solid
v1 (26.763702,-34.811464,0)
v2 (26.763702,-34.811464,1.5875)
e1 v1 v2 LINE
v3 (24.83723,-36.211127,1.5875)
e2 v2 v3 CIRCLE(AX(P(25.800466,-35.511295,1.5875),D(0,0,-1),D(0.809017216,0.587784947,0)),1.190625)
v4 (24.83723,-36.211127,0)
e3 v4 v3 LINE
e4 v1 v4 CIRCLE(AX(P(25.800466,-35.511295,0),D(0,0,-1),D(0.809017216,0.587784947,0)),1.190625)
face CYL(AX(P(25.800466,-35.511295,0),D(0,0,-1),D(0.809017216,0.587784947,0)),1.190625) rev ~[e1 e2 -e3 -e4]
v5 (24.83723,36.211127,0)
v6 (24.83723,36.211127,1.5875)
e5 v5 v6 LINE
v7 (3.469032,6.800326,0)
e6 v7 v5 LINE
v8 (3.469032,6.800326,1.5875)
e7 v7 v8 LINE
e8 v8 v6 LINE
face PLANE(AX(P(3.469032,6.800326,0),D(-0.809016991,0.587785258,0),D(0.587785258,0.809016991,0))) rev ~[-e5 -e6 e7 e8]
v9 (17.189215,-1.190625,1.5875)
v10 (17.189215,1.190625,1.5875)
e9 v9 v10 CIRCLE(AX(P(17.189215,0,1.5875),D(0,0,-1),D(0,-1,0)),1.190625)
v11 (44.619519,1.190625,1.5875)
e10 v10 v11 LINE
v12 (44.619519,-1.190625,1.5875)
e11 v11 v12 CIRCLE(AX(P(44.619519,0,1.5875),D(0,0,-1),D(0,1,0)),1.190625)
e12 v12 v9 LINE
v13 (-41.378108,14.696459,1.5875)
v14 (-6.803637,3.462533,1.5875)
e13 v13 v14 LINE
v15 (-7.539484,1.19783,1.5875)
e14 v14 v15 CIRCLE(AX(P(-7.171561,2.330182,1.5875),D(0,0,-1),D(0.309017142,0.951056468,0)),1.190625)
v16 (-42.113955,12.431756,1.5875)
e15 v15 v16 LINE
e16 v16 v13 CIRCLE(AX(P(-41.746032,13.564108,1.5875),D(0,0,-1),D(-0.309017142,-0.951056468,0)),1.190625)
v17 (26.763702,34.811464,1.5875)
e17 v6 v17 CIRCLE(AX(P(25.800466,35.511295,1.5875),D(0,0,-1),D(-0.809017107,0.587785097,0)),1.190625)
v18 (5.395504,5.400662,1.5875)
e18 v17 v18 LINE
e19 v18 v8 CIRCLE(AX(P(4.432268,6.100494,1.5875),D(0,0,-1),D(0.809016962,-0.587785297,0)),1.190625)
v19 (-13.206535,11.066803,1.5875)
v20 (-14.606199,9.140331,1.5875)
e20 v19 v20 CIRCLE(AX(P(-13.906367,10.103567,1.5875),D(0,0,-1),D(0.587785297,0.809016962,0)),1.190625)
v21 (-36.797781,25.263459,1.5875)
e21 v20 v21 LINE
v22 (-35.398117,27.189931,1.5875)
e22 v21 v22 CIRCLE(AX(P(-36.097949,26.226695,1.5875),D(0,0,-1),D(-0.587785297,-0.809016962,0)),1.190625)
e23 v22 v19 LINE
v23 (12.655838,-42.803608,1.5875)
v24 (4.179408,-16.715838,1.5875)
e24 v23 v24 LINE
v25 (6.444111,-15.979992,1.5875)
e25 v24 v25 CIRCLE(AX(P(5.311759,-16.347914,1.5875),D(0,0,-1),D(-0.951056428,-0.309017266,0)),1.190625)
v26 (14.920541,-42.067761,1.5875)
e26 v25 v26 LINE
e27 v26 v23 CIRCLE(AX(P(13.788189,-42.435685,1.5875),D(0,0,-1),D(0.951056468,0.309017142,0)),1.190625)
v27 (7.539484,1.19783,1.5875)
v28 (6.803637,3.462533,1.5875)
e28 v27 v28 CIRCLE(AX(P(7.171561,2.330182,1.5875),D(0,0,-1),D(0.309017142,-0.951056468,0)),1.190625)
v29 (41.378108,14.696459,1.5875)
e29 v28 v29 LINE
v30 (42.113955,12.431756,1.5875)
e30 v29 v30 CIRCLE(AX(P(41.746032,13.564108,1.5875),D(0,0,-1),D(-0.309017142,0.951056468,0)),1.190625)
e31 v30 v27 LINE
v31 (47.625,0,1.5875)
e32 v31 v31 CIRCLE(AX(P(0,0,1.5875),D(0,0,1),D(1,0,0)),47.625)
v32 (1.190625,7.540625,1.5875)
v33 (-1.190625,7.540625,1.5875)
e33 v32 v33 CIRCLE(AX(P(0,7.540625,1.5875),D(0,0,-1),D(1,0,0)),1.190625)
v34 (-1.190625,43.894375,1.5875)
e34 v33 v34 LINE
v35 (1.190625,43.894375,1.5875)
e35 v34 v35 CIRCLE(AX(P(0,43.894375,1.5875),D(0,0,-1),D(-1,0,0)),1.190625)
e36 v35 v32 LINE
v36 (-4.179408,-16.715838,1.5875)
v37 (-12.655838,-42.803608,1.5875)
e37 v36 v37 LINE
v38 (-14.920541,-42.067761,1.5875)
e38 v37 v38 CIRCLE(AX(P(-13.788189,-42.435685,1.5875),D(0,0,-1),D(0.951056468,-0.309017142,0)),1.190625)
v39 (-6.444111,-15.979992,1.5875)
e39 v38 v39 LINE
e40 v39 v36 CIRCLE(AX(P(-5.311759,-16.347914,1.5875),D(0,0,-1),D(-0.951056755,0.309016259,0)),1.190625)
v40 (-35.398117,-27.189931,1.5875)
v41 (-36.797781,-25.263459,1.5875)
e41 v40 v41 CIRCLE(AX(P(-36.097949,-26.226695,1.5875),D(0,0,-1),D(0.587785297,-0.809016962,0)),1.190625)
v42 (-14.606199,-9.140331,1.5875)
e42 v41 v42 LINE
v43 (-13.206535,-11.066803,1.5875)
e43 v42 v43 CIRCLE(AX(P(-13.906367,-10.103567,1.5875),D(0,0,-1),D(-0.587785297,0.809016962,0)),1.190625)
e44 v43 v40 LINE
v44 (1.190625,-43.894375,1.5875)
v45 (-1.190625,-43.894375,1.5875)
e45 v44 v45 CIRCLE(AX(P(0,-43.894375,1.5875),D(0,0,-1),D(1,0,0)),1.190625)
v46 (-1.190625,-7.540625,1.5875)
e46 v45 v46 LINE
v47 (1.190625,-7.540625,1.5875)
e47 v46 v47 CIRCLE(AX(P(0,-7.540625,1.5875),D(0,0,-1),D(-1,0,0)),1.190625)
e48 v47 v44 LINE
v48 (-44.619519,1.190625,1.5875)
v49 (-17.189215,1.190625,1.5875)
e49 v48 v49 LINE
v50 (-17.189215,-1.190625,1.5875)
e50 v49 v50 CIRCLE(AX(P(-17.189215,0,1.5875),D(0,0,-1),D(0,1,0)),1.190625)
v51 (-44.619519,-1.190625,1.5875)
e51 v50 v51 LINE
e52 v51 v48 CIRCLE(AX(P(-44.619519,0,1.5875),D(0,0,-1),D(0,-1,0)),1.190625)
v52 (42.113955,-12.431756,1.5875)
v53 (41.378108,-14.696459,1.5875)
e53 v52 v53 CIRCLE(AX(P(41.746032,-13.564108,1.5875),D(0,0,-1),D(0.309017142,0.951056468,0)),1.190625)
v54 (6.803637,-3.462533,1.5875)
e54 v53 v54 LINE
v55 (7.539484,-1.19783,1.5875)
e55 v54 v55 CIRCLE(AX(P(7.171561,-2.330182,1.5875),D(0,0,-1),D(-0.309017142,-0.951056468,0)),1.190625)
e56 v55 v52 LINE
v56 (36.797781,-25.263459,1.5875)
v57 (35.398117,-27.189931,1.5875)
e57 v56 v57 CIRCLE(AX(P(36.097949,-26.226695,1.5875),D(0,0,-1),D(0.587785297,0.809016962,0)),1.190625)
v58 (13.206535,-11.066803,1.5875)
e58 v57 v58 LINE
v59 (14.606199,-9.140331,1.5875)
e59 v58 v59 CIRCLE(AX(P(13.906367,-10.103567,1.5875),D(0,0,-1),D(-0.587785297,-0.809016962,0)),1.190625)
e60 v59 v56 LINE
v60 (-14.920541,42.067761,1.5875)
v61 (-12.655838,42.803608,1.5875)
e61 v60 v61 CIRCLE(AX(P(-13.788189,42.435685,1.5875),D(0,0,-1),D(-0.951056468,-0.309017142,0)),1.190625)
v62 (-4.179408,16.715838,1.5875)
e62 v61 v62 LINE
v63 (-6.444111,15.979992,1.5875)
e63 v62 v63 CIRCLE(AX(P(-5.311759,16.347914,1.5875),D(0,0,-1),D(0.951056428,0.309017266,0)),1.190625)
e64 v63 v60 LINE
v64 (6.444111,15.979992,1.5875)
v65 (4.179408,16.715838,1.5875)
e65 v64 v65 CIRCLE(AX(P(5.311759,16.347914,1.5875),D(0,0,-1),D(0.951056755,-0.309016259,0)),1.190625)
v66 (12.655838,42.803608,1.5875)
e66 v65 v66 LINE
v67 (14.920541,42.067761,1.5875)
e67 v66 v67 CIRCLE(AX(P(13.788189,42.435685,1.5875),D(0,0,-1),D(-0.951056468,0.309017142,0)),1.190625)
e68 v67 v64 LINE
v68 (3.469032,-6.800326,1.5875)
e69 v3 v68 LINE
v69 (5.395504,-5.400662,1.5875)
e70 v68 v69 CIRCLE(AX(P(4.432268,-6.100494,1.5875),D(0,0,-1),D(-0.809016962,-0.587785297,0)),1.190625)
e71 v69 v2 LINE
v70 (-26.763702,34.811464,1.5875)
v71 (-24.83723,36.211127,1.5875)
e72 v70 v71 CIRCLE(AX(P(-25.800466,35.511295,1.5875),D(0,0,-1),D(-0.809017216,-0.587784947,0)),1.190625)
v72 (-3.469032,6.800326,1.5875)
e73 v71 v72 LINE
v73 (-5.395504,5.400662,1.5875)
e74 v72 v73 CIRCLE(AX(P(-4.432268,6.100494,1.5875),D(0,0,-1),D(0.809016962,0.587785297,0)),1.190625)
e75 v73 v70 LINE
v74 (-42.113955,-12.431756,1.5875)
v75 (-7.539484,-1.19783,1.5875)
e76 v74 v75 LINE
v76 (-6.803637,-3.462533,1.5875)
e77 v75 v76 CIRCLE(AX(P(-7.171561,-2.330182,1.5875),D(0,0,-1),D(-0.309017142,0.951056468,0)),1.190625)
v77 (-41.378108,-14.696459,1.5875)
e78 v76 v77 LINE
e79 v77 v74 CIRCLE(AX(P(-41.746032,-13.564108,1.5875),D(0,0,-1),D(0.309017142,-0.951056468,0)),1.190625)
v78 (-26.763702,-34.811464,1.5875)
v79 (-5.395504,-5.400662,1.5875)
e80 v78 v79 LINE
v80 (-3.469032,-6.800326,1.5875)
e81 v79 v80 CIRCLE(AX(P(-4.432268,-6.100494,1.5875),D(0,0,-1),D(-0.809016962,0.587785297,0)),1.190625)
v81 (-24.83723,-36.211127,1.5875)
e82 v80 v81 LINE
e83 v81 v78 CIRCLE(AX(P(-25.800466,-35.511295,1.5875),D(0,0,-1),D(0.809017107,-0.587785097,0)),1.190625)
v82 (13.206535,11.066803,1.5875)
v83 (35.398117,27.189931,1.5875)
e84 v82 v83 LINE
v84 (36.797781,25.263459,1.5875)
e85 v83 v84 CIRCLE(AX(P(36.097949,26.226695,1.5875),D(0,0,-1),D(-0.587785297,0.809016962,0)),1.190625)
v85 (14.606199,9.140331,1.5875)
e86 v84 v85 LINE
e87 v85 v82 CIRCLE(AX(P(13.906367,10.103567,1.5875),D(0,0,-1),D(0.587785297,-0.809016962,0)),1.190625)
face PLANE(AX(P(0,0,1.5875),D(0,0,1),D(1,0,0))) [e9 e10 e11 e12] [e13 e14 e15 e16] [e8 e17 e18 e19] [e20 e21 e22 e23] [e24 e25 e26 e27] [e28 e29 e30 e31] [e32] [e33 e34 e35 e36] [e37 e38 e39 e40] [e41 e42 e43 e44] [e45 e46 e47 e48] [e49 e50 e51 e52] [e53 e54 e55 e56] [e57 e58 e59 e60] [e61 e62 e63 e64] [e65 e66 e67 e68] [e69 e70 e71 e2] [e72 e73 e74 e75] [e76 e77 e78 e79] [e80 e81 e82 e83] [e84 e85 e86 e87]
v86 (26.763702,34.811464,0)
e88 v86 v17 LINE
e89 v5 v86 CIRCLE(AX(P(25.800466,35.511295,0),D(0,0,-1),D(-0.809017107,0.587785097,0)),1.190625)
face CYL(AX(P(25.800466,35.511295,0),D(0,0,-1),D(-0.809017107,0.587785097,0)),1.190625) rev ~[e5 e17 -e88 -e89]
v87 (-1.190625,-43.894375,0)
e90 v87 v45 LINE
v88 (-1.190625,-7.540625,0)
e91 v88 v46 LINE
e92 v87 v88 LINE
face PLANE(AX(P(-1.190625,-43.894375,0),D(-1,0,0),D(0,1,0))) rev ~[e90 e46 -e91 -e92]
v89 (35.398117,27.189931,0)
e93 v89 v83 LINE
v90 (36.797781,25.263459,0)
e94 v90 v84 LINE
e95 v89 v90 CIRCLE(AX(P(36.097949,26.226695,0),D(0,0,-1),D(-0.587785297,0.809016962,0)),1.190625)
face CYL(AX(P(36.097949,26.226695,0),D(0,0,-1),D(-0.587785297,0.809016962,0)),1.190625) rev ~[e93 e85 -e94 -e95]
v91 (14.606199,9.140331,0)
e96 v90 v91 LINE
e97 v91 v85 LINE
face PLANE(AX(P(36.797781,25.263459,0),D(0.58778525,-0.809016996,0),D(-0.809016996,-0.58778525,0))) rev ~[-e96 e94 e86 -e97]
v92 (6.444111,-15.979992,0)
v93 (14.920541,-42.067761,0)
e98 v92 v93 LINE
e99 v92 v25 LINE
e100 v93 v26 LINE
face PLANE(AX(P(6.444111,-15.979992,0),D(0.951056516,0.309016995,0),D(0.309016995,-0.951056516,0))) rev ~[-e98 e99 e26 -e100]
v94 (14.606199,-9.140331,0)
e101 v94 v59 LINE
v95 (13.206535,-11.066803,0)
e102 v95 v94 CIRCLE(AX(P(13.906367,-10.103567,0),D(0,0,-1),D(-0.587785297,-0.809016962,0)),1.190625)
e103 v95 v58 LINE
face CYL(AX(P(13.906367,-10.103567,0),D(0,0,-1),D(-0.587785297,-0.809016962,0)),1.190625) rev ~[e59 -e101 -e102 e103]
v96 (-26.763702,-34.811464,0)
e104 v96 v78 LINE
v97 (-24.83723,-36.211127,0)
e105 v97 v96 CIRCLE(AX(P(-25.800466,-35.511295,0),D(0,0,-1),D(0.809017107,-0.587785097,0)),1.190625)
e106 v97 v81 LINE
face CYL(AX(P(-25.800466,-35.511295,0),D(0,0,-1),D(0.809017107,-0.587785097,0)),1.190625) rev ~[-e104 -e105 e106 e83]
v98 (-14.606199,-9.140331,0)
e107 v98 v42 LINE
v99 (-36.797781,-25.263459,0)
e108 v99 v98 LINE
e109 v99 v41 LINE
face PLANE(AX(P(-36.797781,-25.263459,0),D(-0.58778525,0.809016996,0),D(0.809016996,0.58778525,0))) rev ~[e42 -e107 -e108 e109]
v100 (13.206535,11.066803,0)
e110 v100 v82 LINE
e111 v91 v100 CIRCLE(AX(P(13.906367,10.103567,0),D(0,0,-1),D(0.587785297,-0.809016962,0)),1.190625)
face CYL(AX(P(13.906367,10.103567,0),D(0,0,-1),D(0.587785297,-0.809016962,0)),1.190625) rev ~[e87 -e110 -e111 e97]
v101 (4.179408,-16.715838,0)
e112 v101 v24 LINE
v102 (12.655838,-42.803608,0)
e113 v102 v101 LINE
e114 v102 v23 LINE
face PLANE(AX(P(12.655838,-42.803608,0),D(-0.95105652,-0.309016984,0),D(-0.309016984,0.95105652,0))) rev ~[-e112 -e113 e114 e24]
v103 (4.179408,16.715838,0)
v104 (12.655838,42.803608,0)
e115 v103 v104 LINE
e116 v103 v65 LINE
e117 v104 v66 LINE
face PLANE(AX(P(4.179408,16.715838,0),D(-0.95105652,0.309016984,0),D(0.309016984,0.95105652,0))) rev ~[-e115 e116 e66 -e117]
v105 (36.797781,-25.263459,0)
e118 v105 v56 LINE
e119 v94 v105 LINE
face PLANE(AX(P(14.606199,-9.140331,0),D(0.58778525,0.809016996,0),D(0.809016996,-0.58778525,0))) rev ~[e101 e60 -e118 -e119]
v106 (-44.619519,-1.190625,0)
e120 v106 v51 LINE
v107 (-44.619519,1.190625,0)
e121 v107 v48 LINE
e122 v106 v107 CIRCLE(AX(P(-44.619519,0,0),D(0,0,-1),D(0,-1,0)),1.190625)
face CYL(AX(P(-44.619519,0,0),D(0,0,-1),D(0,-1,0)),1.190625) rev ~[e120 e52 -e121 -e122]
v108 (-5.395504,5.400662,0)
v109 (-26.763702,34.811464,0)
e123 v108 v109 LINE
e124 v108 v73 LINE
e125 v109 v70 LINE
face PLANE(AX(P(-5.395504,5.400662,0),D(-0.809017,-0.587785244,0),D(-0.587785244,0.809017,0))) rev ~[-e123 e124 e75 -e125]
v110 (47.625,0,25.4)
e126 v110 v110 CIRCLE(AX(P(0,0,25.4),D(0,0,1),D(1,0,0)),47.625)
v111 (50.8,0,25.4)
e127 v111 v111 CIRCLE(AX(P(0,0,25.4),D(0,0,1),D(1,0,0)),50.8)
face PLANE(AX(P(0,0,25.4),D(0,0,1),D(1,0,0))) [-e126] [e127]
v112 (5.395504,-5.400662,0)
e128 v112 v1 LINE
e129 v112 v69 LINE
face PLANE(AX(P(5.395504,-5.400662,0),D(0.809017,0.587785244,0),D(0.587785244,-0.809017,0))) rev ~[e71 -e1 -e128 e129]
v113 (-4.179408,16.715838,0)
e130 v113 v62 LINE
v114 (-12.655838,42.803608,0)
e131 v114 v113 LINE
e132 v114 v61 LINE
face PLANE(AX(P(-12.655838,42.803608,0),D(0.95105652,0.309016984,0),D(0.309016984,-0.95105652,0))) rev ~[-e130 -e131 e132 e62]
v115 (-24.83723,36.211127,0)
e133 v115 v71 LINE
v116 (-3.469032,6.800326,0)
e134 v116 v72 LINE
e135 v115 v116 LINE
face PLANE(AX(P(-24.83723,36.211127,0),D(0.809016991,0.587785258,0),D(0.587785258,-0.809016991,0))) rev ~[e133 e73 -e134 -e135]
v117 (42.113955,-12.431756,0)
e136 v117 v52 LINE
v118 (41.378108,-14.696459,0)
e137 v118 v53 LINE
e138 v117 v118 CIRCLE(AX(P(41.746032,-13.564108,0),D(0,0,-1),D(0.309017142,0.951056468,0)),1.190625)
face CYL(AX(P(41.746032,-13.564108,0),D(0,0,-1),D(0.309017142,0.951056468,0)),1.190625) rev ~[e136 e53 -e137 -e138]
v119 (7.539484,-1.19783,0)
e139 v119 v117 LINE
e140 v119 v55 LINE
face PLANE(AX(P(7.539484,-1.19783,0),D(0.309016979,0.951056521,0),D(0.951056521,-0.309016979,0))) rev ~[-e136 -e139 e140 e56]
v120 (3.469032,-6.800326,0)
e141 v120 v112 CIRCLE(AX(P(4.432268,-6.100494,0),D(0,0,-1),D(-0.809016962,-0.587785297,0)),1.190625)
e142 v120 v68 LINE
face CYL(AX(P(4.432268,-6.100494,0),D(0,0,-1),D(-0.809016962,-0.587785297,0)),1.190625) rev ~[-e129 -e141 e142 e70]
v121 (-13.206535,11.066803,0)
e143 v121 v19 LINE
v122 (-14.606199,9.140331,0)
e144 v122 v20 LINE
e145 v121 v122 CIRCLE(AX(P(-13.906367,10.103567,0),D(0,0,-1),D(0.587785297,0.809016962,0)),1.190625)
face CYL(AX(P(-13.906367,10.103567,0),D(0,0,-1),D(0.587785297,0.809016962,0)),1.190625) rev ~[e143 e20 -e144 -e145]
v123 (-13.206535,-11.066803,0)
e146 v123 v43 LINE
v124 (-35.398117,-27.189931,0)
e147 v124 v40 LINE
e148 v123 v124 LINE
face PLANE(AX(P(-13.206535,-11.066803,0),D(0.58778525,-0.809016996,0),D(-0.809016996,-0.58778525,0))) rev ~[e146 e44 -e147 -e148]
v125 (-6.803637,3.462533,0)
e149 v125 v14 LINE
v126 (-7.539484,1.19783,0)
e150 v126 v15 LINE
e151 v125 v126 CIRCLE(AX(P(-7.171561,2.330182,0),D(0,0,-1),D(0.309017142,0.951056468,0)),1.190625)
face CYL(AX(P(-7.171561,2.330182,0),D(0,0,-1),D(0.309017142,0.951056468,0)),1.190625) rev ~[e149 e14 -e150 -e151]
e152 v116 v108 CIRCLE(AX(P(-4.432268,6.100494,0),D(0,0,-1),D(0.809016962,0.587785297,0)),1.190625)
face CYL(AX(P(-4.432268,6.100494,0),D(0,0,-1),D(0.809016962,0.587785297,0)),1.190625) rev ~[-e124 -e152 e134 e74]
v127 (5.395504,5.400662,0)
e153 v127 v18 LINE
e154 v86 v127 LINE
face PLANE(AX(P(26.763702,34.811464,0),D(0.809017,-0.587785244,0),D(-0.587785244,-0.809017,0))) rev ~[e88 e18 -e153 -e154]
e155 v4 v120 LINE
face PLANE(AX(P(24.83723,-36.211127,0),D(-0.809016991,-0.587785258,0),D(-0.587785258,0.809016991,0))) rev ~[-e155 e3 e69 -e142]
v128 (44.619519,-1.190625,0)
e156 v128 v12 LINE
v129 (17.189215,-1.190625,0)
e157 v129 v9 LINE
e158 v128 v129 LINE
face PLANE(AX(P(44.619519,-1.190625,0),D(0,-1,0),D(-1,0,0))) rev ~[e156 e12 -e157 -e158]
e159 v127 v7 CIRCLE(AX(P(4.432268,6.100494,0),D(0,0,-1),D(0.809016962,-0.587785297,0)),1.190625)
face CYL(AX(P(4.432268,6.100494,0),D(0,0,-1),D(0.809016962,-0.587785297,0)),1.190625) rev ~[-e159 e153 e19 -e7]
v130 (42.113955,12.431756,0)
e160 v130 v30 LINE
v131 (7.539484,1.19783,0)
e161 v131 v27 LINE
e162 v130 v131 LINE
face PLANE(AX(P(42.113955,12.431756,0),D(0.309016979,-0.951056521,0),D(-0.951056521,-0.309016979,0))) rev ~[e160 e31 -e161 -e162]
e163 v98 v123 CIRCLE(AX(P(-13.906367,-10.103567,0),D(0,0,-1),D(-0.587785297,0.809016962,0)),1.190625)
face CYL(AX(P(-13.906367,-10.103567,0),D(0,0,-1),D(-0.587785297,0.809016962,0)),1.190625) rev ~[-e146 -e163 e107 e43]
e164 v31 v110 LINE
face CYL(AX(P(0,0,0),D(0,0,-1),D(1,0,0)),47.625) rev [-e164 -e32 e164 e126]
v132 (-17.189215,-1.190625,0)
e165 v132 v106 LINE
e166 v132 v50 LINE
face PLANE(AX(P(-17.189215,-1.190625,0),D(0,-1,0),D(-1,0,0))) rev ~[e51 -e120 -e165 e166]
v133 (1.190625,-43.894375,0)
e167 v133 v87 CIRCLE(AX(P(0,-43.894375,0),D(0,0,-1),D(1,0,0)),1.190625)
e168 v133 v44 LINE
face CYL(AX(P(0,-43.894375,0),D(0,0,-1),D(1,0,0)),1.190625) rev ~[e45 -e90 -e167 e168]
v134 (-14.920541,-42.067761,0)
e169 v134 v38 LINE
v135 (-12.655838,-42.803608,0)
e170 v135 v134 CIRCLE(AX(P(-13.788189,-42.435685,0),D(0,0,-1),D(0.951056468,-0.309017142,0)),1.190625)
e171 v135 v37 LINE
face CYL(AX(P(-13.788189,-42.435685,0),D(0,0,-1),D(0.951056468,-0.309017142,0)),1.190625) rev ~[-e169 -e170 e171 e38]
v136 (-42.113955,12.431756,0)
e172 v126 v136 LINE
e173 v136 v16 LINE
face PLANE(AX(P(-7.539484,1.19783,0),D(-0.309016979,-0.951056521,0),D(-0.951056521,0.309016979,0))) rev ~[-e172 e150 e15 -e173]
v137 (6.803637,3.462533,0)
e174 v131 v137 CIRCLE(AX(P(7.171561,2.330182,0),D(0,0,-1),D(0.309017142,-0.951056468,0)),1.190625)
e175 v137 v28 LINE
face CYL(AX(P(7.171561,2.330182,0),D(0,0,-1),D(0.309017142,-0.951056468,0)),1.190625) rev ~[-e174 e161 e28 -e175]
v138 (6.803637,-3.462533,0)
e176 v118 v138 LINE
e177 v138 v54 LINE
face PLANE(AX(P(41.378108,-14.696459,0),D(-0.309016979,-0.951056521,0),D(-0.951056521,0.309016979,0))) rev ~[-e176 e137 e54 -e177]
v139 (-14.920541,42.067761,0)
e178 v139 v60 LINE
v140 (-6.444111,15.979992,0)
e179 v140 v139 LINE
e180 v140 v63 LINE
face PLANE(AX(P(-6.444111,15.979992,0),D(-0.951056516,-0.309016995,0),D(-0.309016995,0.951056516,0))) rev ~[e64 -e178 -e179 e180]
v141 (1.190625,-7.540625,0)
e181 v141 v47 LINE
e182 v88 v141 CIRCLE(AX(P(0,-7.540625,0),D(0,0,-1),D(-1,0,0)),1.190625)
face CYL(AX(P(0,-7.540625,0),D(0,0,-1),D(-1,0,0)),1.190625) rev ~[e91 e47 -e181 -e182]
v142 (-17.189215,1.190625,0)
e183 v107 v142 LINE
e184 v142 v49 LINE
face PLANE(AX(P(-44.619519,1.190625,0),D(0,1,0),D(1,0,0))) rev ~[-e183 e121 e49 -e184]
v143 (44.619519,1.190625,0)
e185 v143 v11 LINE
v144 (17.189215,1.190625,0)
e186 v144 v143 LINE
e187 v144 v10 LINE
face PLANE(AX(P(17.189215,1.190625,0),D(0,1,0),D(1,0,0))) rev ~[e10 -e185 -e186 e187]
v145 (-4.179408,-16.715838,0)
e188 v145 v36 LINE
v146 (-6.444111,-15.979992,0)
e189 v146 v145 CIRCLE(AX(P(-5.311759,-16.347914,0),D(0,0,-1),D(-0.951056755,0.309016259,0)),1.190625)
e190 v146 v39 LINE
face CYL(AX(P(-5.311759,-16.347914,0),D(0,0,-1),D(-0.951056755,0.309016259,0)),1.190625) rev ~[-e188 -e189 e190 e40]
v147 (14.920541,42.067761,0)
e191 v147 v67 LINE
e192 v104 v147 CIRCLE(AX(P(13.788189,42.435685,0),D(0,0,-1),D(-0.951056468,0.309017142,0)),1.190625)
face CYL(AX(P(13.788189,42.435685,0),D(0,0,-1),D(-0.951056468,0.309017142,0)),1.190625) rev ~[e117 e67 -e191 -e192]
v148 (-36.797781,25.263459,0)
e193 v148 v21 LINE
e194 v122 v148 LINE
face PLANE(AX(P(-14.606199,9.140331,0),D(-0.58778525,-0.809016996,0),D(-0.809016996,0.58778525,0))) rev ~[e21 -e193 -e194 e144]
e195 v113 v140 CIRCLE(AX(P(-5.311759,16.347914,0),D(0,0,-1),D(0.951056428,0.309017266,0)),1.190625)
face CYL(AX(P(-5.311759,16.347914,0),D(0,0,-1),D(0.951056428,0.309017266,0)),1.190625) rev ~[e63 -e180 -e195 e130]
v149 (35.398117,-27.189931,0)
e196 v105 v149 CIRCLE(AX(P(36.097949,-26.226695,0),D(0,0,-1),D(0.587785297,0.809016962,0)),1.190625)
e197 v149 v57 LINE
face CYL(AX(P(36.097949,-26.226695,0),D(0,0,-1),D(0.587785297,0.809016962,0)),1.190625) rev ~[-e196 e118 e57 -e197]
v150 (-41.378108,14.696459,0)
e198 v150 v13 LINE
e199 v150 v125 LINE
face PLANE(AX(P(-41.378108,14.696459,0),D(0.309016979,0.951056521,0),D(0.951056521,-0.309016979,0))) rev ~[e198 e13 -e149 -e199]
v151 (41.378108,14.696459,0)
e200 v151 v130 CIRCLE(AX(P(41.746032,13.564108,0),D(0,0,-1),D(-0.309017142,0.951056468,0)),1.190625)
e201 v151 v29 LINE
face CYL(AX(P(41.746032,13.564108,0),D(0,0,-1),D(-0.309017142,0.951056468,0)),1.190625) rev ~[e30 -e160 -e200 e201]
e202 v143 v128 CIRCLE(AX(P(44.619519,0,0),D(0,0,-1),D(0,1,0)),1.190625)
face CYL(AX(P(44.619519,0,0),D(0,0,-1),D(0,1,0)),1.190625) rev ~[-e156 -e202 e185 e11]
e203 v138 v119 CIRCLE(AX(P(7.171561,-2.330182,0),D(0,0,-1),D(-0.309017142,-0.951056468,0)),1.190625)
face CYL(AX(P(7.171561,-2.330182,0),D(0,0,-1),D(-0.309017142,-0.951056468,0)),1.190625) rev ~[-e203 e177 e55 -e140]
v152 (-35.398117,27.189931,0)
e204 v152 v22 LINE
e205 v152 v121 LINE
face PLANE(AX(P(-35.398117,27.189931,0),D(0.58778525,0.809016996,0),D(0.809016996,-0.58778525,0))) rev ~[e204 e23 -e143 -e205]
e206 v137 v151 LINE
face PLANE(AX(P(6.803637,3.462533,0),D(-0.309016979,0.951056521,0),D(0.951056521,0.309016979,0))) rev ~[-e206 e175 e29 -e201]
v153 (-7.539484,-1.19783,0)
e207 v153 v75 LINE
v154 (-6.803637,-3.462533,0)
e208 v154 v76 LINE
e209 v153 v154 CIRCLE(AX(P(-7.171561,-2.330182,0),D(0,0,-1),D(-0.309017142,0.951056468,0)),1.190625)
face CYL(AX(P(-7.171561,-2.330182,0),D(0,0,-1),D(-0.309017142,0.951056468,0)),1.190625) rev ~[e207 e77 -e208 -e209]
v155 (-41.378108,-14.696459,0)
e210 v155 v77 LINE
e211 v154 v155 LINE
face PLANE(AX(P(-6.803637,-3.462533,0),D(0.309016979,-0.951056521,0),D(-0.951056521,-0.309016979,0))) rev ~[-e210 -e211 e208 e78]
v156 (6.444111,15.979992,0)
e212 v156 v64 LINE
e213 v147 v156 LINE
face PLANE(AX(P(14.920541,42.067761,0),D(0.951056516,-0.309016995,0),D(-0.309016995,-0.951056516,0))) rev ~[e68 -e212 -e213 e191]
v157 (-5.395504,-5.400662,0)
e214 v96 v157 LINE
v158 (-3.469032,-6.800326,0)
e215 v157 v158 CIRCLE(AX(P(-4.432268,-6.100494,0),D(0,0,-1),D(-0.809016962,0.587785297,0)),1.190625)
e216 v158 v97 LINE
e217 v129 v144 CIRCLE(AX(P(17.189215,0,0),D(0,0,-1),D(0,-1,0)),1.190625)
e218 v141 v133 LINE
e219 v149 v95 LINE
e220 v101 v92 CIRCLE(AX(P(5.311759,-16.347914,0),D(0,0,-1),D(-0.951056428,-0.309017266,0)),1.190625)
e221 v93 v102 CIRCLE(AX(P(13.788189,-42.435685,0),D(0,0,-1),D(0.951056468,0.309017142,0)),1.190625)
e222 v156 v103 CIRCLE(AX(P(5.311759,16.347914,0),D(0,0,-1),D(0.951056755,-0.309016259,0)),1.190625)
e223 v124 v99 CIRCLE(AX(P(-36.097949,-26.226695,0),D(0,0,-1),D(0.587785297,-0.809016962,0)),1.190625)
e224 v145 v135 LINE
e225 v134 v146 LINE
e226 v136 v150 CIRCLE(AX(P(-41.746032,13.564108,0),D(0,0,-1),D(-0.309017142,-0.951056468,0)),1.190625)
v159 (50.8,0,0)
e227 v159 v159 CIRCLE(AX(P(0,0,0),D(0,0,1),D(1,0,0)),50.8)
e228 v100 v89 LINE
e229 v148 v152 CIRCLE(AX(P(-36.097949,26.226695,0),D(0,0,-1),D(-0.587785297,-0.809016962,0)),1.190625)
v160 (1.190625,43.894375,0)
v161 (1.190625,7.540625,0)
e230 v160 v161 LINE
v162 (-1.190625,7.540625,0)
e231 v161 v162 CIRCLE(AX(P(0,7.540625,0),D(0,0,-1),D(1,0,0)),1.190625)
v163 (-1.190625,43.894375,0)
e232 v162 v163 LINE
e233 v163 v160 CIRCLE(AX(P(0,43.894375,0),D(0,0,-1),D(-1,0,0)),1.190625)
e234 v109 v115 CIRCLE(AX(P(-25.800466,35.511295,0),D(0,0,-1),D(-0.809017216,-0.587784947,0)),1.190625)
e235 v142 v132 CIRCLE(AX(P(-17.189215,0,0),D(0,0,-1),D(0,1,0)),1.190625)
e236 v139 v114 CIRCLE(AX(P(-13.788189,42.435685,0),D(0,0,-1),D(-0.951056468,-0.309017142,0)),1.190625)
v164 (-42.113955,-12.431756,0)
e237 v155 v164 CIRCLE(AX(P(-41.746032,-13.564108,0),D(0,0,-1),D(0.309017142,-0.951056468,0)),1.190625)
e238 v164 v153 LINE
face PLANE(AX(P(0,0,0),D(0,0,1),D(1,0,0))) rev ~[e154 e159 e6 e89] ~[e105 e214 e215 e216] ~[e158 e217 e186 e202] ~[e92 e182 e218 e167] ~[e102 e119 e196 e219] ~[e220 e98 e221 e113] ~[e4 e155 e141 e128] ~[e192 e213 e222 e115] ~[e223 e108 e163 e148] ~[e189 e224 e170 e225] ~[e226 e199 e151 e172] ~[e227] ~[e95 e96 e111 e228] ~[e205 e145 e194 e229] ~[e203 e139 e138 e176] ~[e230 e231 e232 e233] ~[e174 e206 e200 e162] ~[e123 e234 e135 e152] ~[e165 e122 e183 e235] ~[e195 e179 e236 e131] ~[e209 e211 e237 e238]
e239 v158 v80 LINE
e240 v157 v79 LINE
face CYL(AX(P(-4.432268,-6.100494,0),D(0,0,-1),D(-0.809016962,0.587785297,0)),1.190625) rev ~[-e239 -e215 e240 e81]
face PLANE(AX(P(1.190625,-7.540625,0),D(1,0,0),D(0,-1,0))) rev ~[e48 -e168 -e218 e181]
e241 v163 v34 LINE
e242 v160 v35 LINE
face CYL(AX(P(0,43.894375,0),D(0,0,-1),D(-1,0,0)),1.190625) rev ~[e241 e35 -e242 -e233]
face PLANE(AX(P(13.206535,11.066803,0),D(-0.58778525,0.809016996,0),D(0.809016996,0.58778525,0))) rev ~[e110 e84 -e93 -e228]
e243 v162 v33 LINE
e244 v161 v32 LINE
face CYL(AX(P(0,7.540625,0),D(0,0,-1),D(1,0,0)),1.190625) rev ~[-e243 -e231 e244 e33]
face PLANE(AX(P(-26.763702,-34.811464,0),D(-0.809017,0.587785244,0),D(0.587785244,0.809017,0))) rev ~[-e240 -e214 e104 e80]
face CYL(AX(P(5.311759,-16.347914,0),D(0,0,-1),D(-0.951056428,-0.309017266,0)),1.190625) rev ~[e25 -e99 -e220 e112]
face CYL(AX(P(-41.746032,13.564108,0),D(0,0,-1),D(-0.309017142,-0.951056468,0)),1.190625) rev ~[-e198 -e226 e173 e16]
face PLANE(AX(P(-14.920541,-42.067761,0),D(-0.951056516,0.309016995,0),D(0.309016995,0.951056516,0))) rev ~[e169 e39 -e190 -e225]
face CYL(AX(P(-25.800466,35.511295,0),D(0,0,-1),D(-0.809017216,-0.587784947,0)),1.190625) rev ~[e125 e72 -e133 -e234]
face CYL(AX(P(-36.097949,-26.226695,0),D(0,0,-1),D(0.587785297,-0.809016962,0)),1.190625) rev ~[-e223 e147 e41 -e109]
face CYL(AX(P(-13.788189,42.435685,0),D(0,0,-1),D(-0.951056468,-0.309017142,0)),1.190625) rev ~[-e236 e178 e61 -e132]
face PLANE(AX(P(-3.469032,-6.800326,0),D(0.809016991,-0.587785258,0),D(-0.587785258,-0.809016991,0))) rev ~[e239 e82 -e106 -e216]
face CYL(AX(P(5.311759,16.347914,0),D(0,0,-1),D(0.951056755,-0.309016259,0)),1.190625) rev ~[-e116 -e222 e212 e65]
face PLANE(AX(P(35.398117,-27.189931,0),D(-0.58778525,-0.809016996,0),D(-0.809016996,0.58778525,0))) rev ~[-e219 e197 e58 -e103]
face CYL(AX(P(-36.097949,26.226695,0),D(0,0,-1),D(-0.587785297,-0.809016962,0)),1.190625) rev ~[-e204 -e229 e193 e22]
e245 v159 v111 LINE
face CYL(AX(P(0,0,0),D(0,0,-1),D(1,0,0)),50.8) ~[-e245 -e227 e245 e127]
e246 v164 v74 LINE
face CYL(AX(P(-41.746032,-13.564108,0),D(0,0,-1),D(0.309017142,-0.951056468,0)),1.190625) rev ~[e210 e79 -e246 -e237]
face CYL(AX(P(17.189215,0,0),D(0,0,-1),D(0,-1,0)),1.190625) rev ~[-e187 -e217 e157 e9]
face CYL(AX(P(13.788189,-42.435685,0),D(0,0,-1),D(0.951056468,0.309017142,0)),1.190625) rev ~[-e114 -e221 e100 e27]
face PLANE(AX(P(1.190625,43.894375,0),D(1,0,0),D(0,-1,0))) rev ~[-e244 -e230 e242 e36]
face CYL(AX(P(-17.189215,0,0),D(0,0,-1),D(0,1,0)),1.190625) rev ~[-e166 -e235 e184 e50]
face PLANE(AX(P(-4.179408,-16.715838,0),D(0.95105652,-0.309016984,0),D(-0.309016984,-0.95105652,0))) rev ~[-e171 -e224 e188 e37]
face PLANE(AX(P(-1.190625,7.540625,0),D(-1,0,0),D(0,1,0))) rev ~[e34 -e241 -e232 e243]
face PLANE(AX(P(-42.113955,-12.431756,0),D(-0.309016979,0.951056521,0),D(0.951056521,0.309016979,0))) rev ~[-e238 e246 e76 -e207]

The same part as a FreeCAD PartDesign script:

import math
import FreeCAD as App
import Part
import Sketcher
from FreeCAD import Vector
Q = App.Units.Quantity

doc = App.newDocument("Part")
body = doc.addObject("PartDesign::Body", "Body")

# Sketch on XY plane
sketch1 = body.newObject("Sketcher::SketchObject", "Sketch")
sketch1.AttachmentSupport = (doc.getObject("XY_Plane"), [""])
sketch1.MapMode = "FlatFace"
sketch1.addGeometry(Part.Circle(Vector(0, 0, 0), Vector(0, 0, 1), 47.625), False)
sketch1.addGeometry(Part.ArcOfCircle(Part.Circle(Vector(-13.788189, -42.435685, 0), Vector(0, 0, 1), 1.190625), math.radians(161.999991), math.radians(341.999991)), False)
sketch1.addGeometry(Part.LineSegment(Vector(-14.920541, -42.067761, 0), Vector(-6.444111, -15.979992, 0)), False)
sketch1.addGeometry(Part.ArcOfCircle(Part.Circle(Vector(-5.311759, -16.347914, 0), Vector(0, 0, 1), 1.190625), math.radians(-18.000016), math.radians(162.000044)), False)
sketch1.addGeometry(Part.LineSegment(Vector(-4.179408, -16.715838, 0), Vector(-12.655838, -42.803608, 0)), False)
sketch1.addGeometry(Part.ArcOfCircle(Part.Circle(Vector(-36.097949, -26.226695, 0), Vector(0, 0, 1), 1.190625), math.radians(126.000003), math.radians(306.000003)), False)
sketch1.addGeometry(Part.LineSegment(Vector(-36.797781, -25.263459, 0), Vector(-14.606199, -9.140331, 0)), False)
sketch1.addGeometry(Part.ArcOfCircle(Part.Circle(Vector(-13.906367, -10.103567, 0), Vector(0, 0, 1), 1.190625), math.radians(-53.999997), math.radians(126.000003)), False)
sketch1.addGeometry(Part.LineSegment(Vector(-13.206535, -11.066803, 0), Vector(-35.398117, -27.189931, 0)), False)
sketch1.addGeometry(Part.LineSegment(Vector(-42.113955, -12.431756, 0), Vector(-7.539484, -1.19783, 0)), False)
sketch1.addGeometry(Part.ArcOfCircle(Part.Circle(Vector(-7.171561, -2.330182, 0), Vector(0, 0, 1), 1.190625), math.radians(-71.999991), math.radians(108.000009)), False)
sketch1.addGeometry(Part.LineSegment(Vector(-6.803637, -3.462533, 0), Vector(-41.378108, -14.696459, 0)), False)
sketch1.addGeometry(Part.ArcOfCircle(Part.Circle(Vector(-41.746032, -13.564108, 0), Vector(0, 0, 1), 1.190625), math.radians(108.000009), math.radians(288.000009)), False)
sketch1.addGeometry(Part.LineSegment(Vector(-26.763702, -34.811464, 0), Vector(-5.395504, -5.400662, 0)), False)
sketch1.addGeometry(Part.ArcOfCircle(Part.Circle(Vector(-4.432268, -6.100494, 0), Vector(0, 0, 1), 1.190625), math.radians(-36.000003), math.radians(143.999997)), False)
sketch1.addGeometry(Part.LineSegment(Vector(-3.469032, -6.800326, 0), Vector(-24.83723, -36.211127, 0)), False)
sketch1.addGeometry(Part.ArcOfCircle(Part.Circle(Vector(-25.800466, -35.511295, 0), Vector(0, 0, 1), 1.190625), math.radians(144.000022), math.radians(324.000011)), False)
sketch1.addGeometry(Part.ArcOfCircle(Part.Circle(Vector(13.788189, -42.435685, 0), Vector(0, 0, 1), 1.190625), math.radians(-161.999991), math.radians(18.000009)), False)
sketch1.addGeometry(Part.LineSegment(Vector(12.655838, -42.803608, 0), Vector(4.179408, -16.715838, 0)), False)
sketch1.addGeometry(Part.ArcOfCircle(Part.Circle(Vector(5.311759, -16.347914, 0), Vector(0, 0, 1), 1.190625), math.radians(17.999956), math.radians(198.000016)), False)
sketch1.addGeometry(Part.LineSegment(Vector(6.444111, -15.979992, 0), Vector(14.920541, -42.067761, 0)), False)
sketch1.addGeometry(Part.LineSegment(Vector(-1.190625, -43.894375, 0), Vector(-1.190625, -7.540625, 0)), False)
sketch1.addGeometry(Part.ArcOfCircle(Part.Circle(Vector(0, -7.540625, 0), Vector(0, 0, 1), 1.190625), math.radians(0), math.radians(180)), False)
sketch1.addGeometry(Part.LineSegment(Vector(1.190625, -7.540625, 0), Vector(1.190625, -43.894375, 0)), False)
sketch1.addGeometry(Part.ArcOfCircle(Part.Circle(Vector(0, -43.894375, 0), Vector(0, 0, 1), 1.190625), math.radians(180), math.radians(360)), False)
sketch1.addGeometry(Part.LineSegment(Vector(24.83723, -36.211127, 0), Vector(3.469032, -6.800326, 0)), False)
sketch1.addGeometry(Part.ArcOfCircle(Part.Circle(Vector(4.432268, -6.100494, 0), Vector(0, 0, 1), 1.190625), math.radians(36.000003), math.radians(216.000003)), False)
sketch1.addGeometry(Part.LineSegment(Vector(5.395504, -5.400662, 0), Vector(26.763702, -34.811464, 0)), False)
sketch1.addGeometry(Part.ArcOfCircle(Part.Circle(Vector(25.800466, -35.511295, 0), Vector(0, 0, 1), 1.190625), math.radians(-144.000011), math.radians(35.999978)), False)
sketch1.addGeometry(Part.ArcOfCircle(Part.Circle(Vector(36.097949, -26.226695, 0), Vector(0, 0, 1), 1.190625), math.radians(-126.000003), math.radians(53.999997)), False)
sketch1.addGeometry(Part.LineSegment(Vector(35.398117, -27.189931, 0), Vector(13.206535, -11.066803, 0)), False)
sketch1.addGeometry(Part.ArcOfCircle(Part.Circle(Vector(13.906367, -10.103567, 0), Vector(0, 0, 1), 1.190625), math.radians(53.999997), math.radians(233.999997)), False)
sketch1.addGeometry(Part.LineSegment(Vector(14.606199, -9.140331, 0), Vector(36.797781, -25.263459, 0)), False)
sketch1.addGeometry(Part.LineSegment(Vector(41.378108, -14.696459, 0), Vector(6.803637, -3.462533, 0)), False)
sketch1.addGeometry(Part.ArcOfCircle(Part.Circle(Vector(7.171561, -2.330182, 0), Vector(0, 0, 1), 1.190625), math.radians(71.999991), math.radians(251.999991)), False)
sketch1.addGeometry(Part.LineSegment(Vector(7.539484, -1.19783, 0), Vector(42.113955, -12.431756, 0)), False)
sketch1.addGeometry(Part.ArcOfCircle(Part.Circle(Vector(41.746032, -13.564108, 0), Vector(0, 0, 1), 1.190625), math.radians(-108.000009), math.radians(71.999991)), False)
sketch1.addGeometry(Part.ArcOfCircle(Part.Circle(Vector(-44.619519, 0, 0), Vector(0, 0, 1), 1.190625), math.radians(90), math.radians(270)), False)
sketch1.addGeometry(Part.LineSegment(Vector(-44.619519, 1.190625, 0), Vector(-17.189215, 1.190625, 0)), False)
sketch1.addGeometry(Part.ArcOfCircle(Part.Circle(Vector(-17.189215, 0, 0), Vector(0, 0, 1), 1.190625), math.radians(-90), math.radians(90)), False)
sketch1.addGeometry(Part.LineSegment(Vector(-17.189215, -1.190625, 0), Vector(-44.619519, -1.190625, 0)), False)
sketch1.addGeometry(Part.LineSegment(Vector(-41.378108, 14.696459, 0), Vector(-6.803637, 3.462533, 0)), False)
sketch1.addGeometry(Part.ArcOfCircle(Part.Circle(Vector(-7.171561, 2.330182, 0), Vector(0, 0, 1), 1.190625), math.radians(-108.000009), math.radians(71.999991)), False)
sketch1.addGeometry(Part.LineSegment(Vector(-7.539484, 1.19783, 0), Vector(-42.113955, 12.431756, 0)), False)
sketch1.addGeometry(Part.ArcOfCircle(Part.Circle(Vector(-41.746032, 13.564108, 0), Vector(0, 0, 1), 1.190625), math.radians(71.999991), math.radians(251.999991)), False)
sketch1.addGeometry(Part.ArcOfCircle(Part.Circle(Vector(-36.097949, 26.226695, 0), Vector(0, 0, 1), 1.190625), math.radians(53.999997), math.radians(233.999997)), False)
sketch1.addGeometry(Part.LineSegment(Vector(-35.398117, 27.189931, 0), Vector(-13.206535, 11.066803, 0)), False)
sketch1.addGeometry(Part.ArcOfCircle(Part.Circle(Vector(-13.906367, 10.103567, 0), Vector(0, 0, 1), 1.190625), math.radians(-126.000003), math.radians(53.999997)), False)
sketch1.addGeometry(Part.LineSegment(Vector(-14.606199, 9.140331, 0), Vector(-36.797781, 25.263459, 0)), False)
sketch1.addGeometry(Part.LineSegment(Vector(-24.83723, 36.211127, 0), Vector(-3.469032, 6.800326, 0)), False)
sketch1.addGeometry(Part.ArcOfCircle(Part.Circle(Vector(-4.432268, 6.100494, 0), Vector(0, 0, 1), 1.190625), math.radians(-143.999997), math.radians(36.000003)), False)
sketch1.addGeometry(Part.LineSegment(Vector(-5.395504, 5.400662, 0), Vector(-26.763702, 34.811464, 0)), False)
sketch1.addGeometry(Part.ArcOfCircle(Part.Circle(Vector(-25.800466, 35.511295, 0), Vector(0, 0, 1), 1.190625), math.radians(35.999989), math.radians(215.999978)), False)
sketch1.addGeometry(Part.ArcOfCircle(Part.Circle(Vector(-13.788189, 42.435685, 0), Vector(0, 0, 1), 1.190625), math.radians(18.000009), math.radians(198.000009)), False)
sketch1.addGeometry(Part.LineSegment(Vector(-12.655838, 42.803608, 0), Vector(-4.179408, 16.715838, 0)), False)
sketch1.addGeometry(Part.ArcOfCircle(Part.Circle(Vector(-5.311759, 16.347914, 0), Vector(0, 0, 1), 1.190625), math.radians(-162.000044), math.radians(18.000016)), False)
sketch1.addGeometry(Part.LineSegment(Vector(-6.444111, 15.979992, 0), Vector(-14.920541, 42.067761, 0)), False)
sketch1.addGeometry(Part.LineSegment(Vector(26.763702, 34.811464, 0), Vector(5.395504, 5.400662, 0)), False)
sketch1.addGeometry(Part.ArcOfCircle(Part.Circle(Vector(4.432268, 6.100494, 0), Vector(0, 0, 1), 1.190625), math.radians(143.999997), math.radians(323.999997)), False)
sketch1.addGeometry(Part.LineSegment(Vector(3.469032, 6.800326, 0), Vector(24.83723, 36.211127, 0)), False)
sketch1.addGeometry(Part.ArcOfCircle(Part.Circle(Vector(25.800466, 35.511295, 0), Vector(0, 0, 1), 1.190625), math.radians(-35.999978), math.radians(144.000011)), False)
sketch1.addGeometry(Part.ArcOfCircle(Part.Circle(Vector(44.619519, 0, 0), Vector(0, 0, 1), 1.190625), math.radians(-90), math.radians(90)), False)
sketch1.addGeometry(Part.LineSegment(Vector(44.619519, -1.190625, 0), Vector(17.189215, -1.190625, 0)), False)
sketch1.addGeometry(Part.ArcOfCircle(Part.Circle(Vector(17.189215, 0, 0), Vector(0, 0, 1), 1.190625), math.radians(90), math.radians(270)), False)
sketch1.addGeometry(Part.LineSegment(Vector(17.189215, 1.190625, 0), Vector(44.619519, 1.190625, 0)), False)
sketch1.addGeometry(Part.LineSegment(Vector(42.113955, 12.431756, 0), Vector(7.539484, 1.19783, 0)), False)
sketch1.addGeometry(Part.ArcOfCircle(Part.Circle(Vector(7.171561, 2.330182, 0), Vector(0, 0, 1), 1.190625), math.radians(108.000009), math.radians(288.000009)), False)
sketch1.addGeometry(Part.LineSegment(Vector(6.803637, 3.462533, 0), Vector(41.378108, 14.696459, 0)), False)
sketch1.addGeometry(Part.ArcOfCircle(Part.Circle(Vector(41.746032, 13.564108, 0), Vector(0, 0, 1), 1.190625), math.radians(-71.999991), math.radians(108.000009)), False)
sketch1.addGeometry(Part.ArcOfCircle(Part.Circle(Vector(36.097949, 26.226695, 0), Vector(0, 0, 1), 1.190625), math.radians(-53.999997), math.radians(126.000003)), False)
sketch1.addGeometry(Part.LineSegment(Vector(36.797781, 25.263459, 0), Vector(14.606199, 9.140331, 0)), False)
sketch1.addGeometry(Part.ArcOfCircle(Part.Circle(Vector(13.906367, 10.103567, 0), Vector(0, 0, 1), 1.190625), math.radians(126.000003), math.radians(306.000003)), False)
sketch1.addGeometry(Part.LineSegment(Vector(13.206535, 11.066803, 0), Vector(35.398117, 27.189931, 0)), False)
sketch1.addGeometry(Part.LineSegment(Vector(-1.190625, 7.540625, 0), Vector(-1.190625, 43.894375, 0)), False)
sketch1.addGeometry(Part.ArcOfCircle(Part.Circle(Vector(0, 43.894375, 0), Vector(0, 0, 1), 1.190625), math.radians(0), math.radians(180)), False)
sketch1.addGeometry(Part.LineSegment(Vector(1.190625, 43.894375, 0), Vector(1.190625, 7.540625, 0)), False)
sketch1.addGeometry(Part.ArcOfCircle(Part.Circle(Vector(0, 7.540625, 0), Vector(0, 0, 1), 1.190625), math.radians(180), math.radians(360)), False)
sketch1.addGeometry(Part.LineSegment(Vector(4.179408, 16.715838, 0), Vector(12.655838, 42.803608, 0)), False)
sketch1.addGeometry(Part.ArcOfCircle(Part.Circle(Vector(13.788189, 42.435685, 0), Vector(0, 0, 1), 1.190625), math.radians(-18.000009), math.radians(161.999991)), False)
sketch1.addGeometry(Part.LineSegment(Vector(14.920541, 42.067761, 0), Vector(6.444111, 15.979992, 0)), False)
sketch1.addGeometry(Part.ArcOfCircle(Part.Circle(Vector(5.311759, 16.347914, 0), Vector(0, 0, 1), 1.190625), math.radians(161.999984), math.radians(342.000044)), False)
sketch1.addConstraint(Sketcher.Constraint("Tangent", 1, 1, 2, 1))
sketch1.addConstraint(Sketcher.Constraint("Tangent", 2, 2, 3, 2))
sketch1.addConstraint(Sketcher.Constraint("Tangent", 3, 1, 4, 1))
sketch1.addConstraint(Sketcher.Constraint("Tangent", 4, 2, 1, 2))
sketch1.addConstraint(Sketcher.Constraint("Tangent", 5, 1, 6, 1))
sketch1.addConstraint(Sketcher.Constraint("Tangent", 6, 2, 7, 2))
sketch1.addConstraint(Sketcher.Constraint("Tangent", 7, 1, 8, 1))
sketch1.addConstraint(Sketcher.Constraint("Tangent", 8, 2, 5, 2))
sketch1.addConstraint(Sketcher.Constraint("Tangent", 9, 2, 10, 2))
sketch1.addConstraint(Sketcher.Constraint("Tangent", 10, 1, 11, 1))
sketch1.addConstraint(Sketcher.Constraint("Tangent", 11, 2, 12, 2))
sketch1.addConstraint(Sketcher.Constraint("Tangent", 12, 1, 9, 1))
sketch1.addConstraint(Sketcher.Constraint("Tangent", 13, 2, 14, 2))
sketch1.addConstraint(Sketcher.Constraint("Tangent", 14, 1, 15, 1))
sketch1.addConstraint(Sketcher.Constraint("Tangent", 15, 2, 16, 2))
sketch1.addConstraint(Sketcher.Constraint("Tangent", 16, 1, 13, 1))
sketch1.addConstraint(Sketcher.Constraint("Tangent", 17, 1, 18, 1))
sketch1.addConstraint(Sketcher.Constraint("Tangent", 18, 2, 19, 2))
sketch1.addConstraint(Sketcher.Constraint("Tangent", 19, 1, 20, 1))
sketch1.addConstraint(Sketcher.Constraint("Tangent", 20, 2, 17, 2))
sketch1.addConstraint(Sketcher.Constraint("Tangent", 21, 2, 22, 2))
sketch1.addConstraint(Sketcher.Constraint("Tangent", 22, 1, 23, 1))
sketch1.addConstraint(Sketcher.Constraint("Tangent", 23, 2, 24, 2))
sketch1.addConstraint(Sketcher.Constraint("Tangent", 24, 1, 21, 1))
sketch1.addConstraint(Sketcher.Constraint("Tangent", 25, 2, 26, 2))
sketch1.addConstraint(Sketcher.Constraint("Tangent", 26, 1, 27, 1))
sketch1.addConstraint(Sketcher.Constraint("Tangent", 27, 2, 28, 2))
sketch1.addConstraint(Sketcher.Constraint("Tangent", 28, 1, 25, 1))
sketch1.addConstraint(Sketcher.Constraint("Tangent", 29, 1, 30, 1))
sketch1.addConstraint(Sketcher.Constraint("Tangent", 30, 2, 31, 2))
sketch1.addConstraint(Sketcher.Constraint("Tangent", 31, 1, 32, 1))
sketch1.addConstraint(Sketcher.Constraint("Tangent", 32, 2, 29, 2))
sketch1.addConstraint(Sketcher.Constraint("Tangent", 33, 2, 34, 2))
sketch1.addConstraint(Sketcher.Constraint("Tangent", 34, 1, 35, 1))
sketch1.addConstraint(Sketcher.Constraint("Tangent", 35, 2, 36, 2))
sketch1.addConstraint(Sketcher.Constraint("Tangent", 36, 1, 33, 1))
sketch1.addConstraint(Sketcher.Constraint("Tangent", 37, 1, 38, 1))
sketch1.addConstraint(Sketcher.Constraint("Tangent", 38, 2, 39, 2))
sketch1.addConstraint(Sketcher.Constraint("Tangent", 39, 1, 40, 1))
sketch1.addConstraint(Sketcher.Constraint("Tangent", 40, 2, 37, 2))
sketch1.addConstraint(Sketcher.Constraint("Tangent", 41, 2, 42, 2))
sketch1.addConstraint(Sketcher.Constraint("Tangent", 42, 1, 43, 1))
sketch1.addConstraint(Sketcher.Constraint("Tangent", 43, 2, 44, 2))
sketch1.addConstraint(Sketcher.Constraint("Tangent", 44, 1, 41, 1))
sketch1.addConstraint(Sketcher.Constraint("Tangent", 45, 1, 46, 1))
sketch1.addConstraint(Sketcher.Constraint("Tangent", 46, 2, 47, 2))
sketch1.addConstraint(Sketcher.Constraint("Tangent", 47, 1, 48, 1))
sketch1.addConstraint(Sketcher.Constraint("Tangent", 48, 2, 45, 2))
sketch1.addConstraint(Sketcher.Constraint("Tangent", 49, 2, 50, 2))
sketch1.addConstraint(Sketcher.Constraint("Tangent", 50, 1, 51, 1))
sketch1.addConstraint(Sketcher.Constraint("Tangent", 51, 2, 52, 2))
sketch1.addConstraint(Sketcher.Constraint("Tangent", 52, 1, 49, 1))
sketch1.addConstraint(Sketcher.Constraint("Tangent", 53, 1, 54, 1))
sketch1.addConstraint(Sketcher.Constraint("Tangent", 54, 2, 55, 2))
sketch1.addConstraint(Sketcher.Constraint("Tangent", 55, 1, 56, 1))
sketch1.addConstraint(Sketcher.Constraint("Tangent", 56, 2, 53, 2))
sketch1.addConstraint(Sketcher.Constraint("Tangent", 57, 2, 58, 2))
sketch1.addConstraint(Sketcher.Constraint("Tangent", 58, 1, 59, 1))
sketch1.addConstraint(Sketcher.Constraint("Tangent", 59, 2, 60, 2))
sketch1.addConstraint(Sketcher.Constraint("Tangent", 60, 1, 57, 1))
sketch1.addConstraint(Sketcher.Constraint("Tangent", 61, 1, 62, 1))
sketch1.addConstraint(Sketcher.Constraint("Tangent", 62, 2, 63, 2))
sketch1.addConstraint(Sketcher.Constraint("Tangent", 63, 1, 64, 1))
sketch1.addConstraint(Sketcher.Constraint("Tangent", 64, 2, 61, 2))
sketch1.addConstraint(Sketcher.Constraint("Tangent", 65, 2, 66, 2))
sketch1.addConstraint(Sketcher.Constraint("Tangent", 66, 1, 67, 1))
sketch1.addConstraint(Sketcher.Constraint("Tangent", 67, 2, 68, 2))
sketch1.addConstraint(Sketcher.Constraint("Tangent", 68, 1, 65, 1))
sketch1.addConstraint(Sketcher.Constraint("Tangent", 69, 1, 70, 1))
sketch1.addConstraint(Sketcher.Constraint("Tangent", 70, 2, 71, 2))
sketch1.addConstraint(Sketcher.Constraint("Tangent", 71, 1, 72, 1))
sketch1.addConstraint(Sketcher.Constraint("Tangent", 72, 2, 69, 2))
sketch1.addConstraint(Sketcher.Constraint("Tangent", 73, 2, 74, 2))
sketch1.addConstraint(Sketcher.Constraint("Tangent", 74, 1, 75, 1))
sketch1.addConstraint(Sketcher.Constraint("Tangent", 75, 2, 76, 2))
sketch1.addConstraint(Sketcher.Constraint("Tangent", 76, 1, 73, 1))
sketch1.addConstraint(Sketcher.Constraint("Tangent", 77, 2, 78, 2))
sketch1.addConstraint(Sketcher.Constraint("Tangent", 78, 1, 79, 1))
sketch1.addConstraint(Sketcher.Constraint("Tangent", 79, 2, 80, 2))
sketch1.addConstraint(Sketcher.Constraint("Tangent", 80, 1, 77, 1))
sketch1.addConstraint(Sketcher.Constraint("Vertical", 21))
sketch1.addConstraint(Sketcher.Constraint("Vertical", 23))
sketch1.addConstraint(Sketcher.Constraint("Horizontal", 38))
sketch1.addConstraint(Sketcher.Constraint("Horizontal", 40))
sketch1.addConstraint(Sketcher.Constraint("Horizontal", 62))
sketch1.addConstraint(Sketcher.Constraint("Horizontal", 64))
sketch1.addConstraint(Sketcher.Constraint("Vertical", 73))
sketch1.addConstraint(Sketcher.Constraint("Vertical", 75))
sketch1.addConstraint(Sketcher.Constraint("Coincident", 0, 3, -1, 1))
sketch1.addConstraint(Sketcher.Constraint("Equal", 1, 3))
sketch1.addConstraint(Sketcher.Constraint("Equal", 3, 5))
sketch1.addConstraint(Sketcher.Constraint("Equal", 5, 7))
sketch1.addConstraint(Sketcher.Constraint("Equal", 7, 10))
sketch1.addConstraint(Sketcher.Constraint("Equal", 10, 12))
sketch1.addConstraint(Sketcher.Constraint("Equal", 12, 14))
sketch1.addConstraint(Sketcher.Constraint("Equal", 14, 16))
sketch1.addConstraint(Sketcher.Constraint("Equal", 16, 17))
sketch1.addConstraint(Sketcher.Constraint("Equal", 17, 19))
sketch1.addConstraint(Sketcher.Constraint("Equal", 19, 22))
sketch1.addConstraint(Sketcher.Constraint("Equal", 24, 26))
sketch1.addConstraint(Sketcher.Constraint("Equal", 26, 28))
sketch1.addConstraint(Sketcher.Constraint("Equal", 28, 29))
sketch1.addConstraint(Sketcher.Constraint("Equal", 29, 31))
sketch1.addConstraint(Sketcher.Constraint("Equal", 31, 34))
sketch1.addConstraint(Sketcher.Constraint("Equal", 34, 36))
sketch1.addConstraint(Sketcher.Constraint("Equal", 36, 37))
sketch1.addConstraint(Sketcher.Constraint("Equal", 39, 42))
sketch1.addConstraint(Sketcher.Constraint("Equal", 42, 44))
sketch1.addConstraint(Sketcher.Constraint("Equal", 44, 45))
sketch1.addConstraint(Sketcher.Constraint("Equal", 45, 47))
sketch1.addConstraint(Sketcher.Constraint("Equal", 47, 50))
sketch1.addConstraint(Sketcher.Constraint("Equal", 50, 52))
sketch1.addConstraint(Sketcher.Constraint("Equal", 52, 53))
sketch1.addConstraint(Sketcher.Constraint("Equal", 53, 55))
sketch1.addConstraint(Sketcher.Constraint("Equal", 55, 58))
sketch1.addConstraint(Sketcher.Constraint("Equal", 58, 60))
sketch1.addConstraint(Sketcher.Constraint("Equal", 60, 61))
sketch1.addConstraint(Sketcher.Constraint("Equal", 63, 66))
sketch1.addConstraint(Sketcher.Constraint("Equal", 66, 68))
sketch1.addConstraint(Sketcher.Constraint("Equal", 68, 69))
sketch1.addConstraint(Sketcher.Constraint("Equal", 69, 71))
sketch1.addConstraint(Sketcher.Constraint("Equal", 71, 74))
sketch1.addConstraint(Sketcher.Constraint("Equal", 76, 78))
sketch1.addConstraint(Sketcher.Constraint("Equal", 78, 80))
sketch1.addConstraint(Sketcher.Constraint("Symmetric", 34, 3, 42, 3, -1, 1))
sketch1.addConstraint(Sketcher.Constraint("Symmetric", 36, 3, 44, 3, -1, 1))
sketch1.addConstraint(Sketcher.Constraint("Symmetric", 29, 3, 45, 3, -1, 1))
sketch1.addConstraint(Sketcher.Constraint("Symmetric", 31, 3, 47, 3, -1, 1))
sketch1.addConstraint(Sketcher.Constraint("Symmetric", 26, 3, 50, 3, -1, 1))
sketch1.addConstraint(Sketcher.Constraint("Symmetric", 28, 3, 52, 3, -1, 1))
sketch1.addConstraint(Sketcher.Constraint("Symmetric", 17, 3, 53, 3, -1, 1))
sketch1.addConstraint(Sketcher.Constraint("Symmetric", 19, 3, 55, 3, -1, 1))
sketch1.addConstraint(Sketcher.Constraint("Symmetric", 14, 3, 58, 3, -1, 1))
sketch1.addConstraint(Sketcher.Constraint("Symmetric", 16, 3, 60, 3, -1, 1))
sketch1.addConstraint(Sketcher.Constraint("Symmetric", 37, 3, 61, 3, -1, 1))
sketch1.addConstraint(Sketcher.Constraint("Symmetric", 10, 3, 66, 3, -1, 1))
sketch1.addConstraint(Sketcher.Constraint("Symmetric", 12, 3, 68, 3, -1, 1))
sketch1.addConstraint(Sketcher.Constraint("Symmetric", 5, 3, 69, 3, -1, 1))
sketch1.addConstraint(Sketcher.Constraint("Symmetric", 7, 3, 71, 3, -1, 1))
sketch1.addConstraint(Sketcher.Constraint("Symmetric", 24, 3, 74, 3, -1, 1))
sketch1.addConstraint(Sketcher.Constraint("Symmetric", 1, 3, 78, 3, -1, 1))
sketch1.addConstraint(Sketcher.Constraint("Symmetric", 3, 3, 80, 3, -1, 1))
sketch1.addConstraint(Sketcher.Constraint("Symmetric", 1, 3, 17, 3, -2))
sketch1.addConstraint(Sketcher.Constraint("Symmetric", 3, 3, 19, 3, -2))
sketch1.addConstraint(Sketcher.Constraint("Symmetric", 14, 3, 26, 3, -2))
sketch1.addConstraint(Sketcher.Constraint("Symmetric", 16, 3, 28, 3, -2))
sketch1.addConstraint(Sketcher.Constraint("Symmetric", 5, 3, 29, 3, -2))
sketch1.addConstraint(Sketcher.Constraint("Symmetric", 7, 3, 31, 3, -2))
sketch1.addConstraint(Sketcher.Constraint("Symmetric", 10, 3, 34, 3, -2))
sketch1.addConstraint(Sketcher.Constraint("Symmetric", 12, 3, 36, 3, -2))
sketch1.addConstraint(Sketcher.Constraint("Symmetric", 39, 3, 63, 3, -2))
sketch1.addConstraint(Sketcher.Constraint("Symmetric", 22, 3, 76, 3, -1))
sketch1.addConstraint(Sketcher.Constraint("Perpendicular", 11, 18))
sketch1.addConstraint(Sketcher.Constraint("Perpendicular", 8, 25))
sketch1.addConstraint(Sketcher.Constraint("Equal", 4, 6))
sketch1.addConstraint(Sketcher.Constraint("Equal", 11, 13))
sketch1.addConstraint(Sketcher.Constraint("Diameter", 0, Q("3.75 in")))
sketch1.addConstraint(Sketcher.Constraint("Angle", 2, Q("72 deg")))
sketch1.addConstraint(Sketcher.Constraint("Angle", 6, Q("36 deg")))
sketch1.addConstraint(Sketcher.Constraint("Radius", 1, Q("0.046875 in")))
sketch1.addConstraint(Sketcher.Constraint("DistanceY", 22, 3, -1, 1, Q("0.296875 in")))
sketch1.addConstraint(Sketcher.Constraint("DistanceY", 21, 1, 21, 2, Q("36.35375 mm")))
sketch1.addConstraint(Sketcher.Constraint("DistanceX", 6, 2, -1, 1, Q("14.606199 mm")))
sketch1.addConstraint(Sketcher.Constraint("DistanceX", 16, 1, -1, 1, Q("26.763702 mm")))
sketch1.addConstraint(Sketcher.Constraint("Distance", 9, Q("36.35375 mm")))
sketch1.addConstraint(Sketcher.Constraint("DistanceX", 38, 1, 38, 2, Q("27.430304 mm")))
sketch1.addConstraint(Sketcher.Constraint("DistanceX", 1, 3, -1, 1, Q("13.788189 mm")))
sketch1.addConstraint(Sketcher.Constraint("DistanceX", 3, 3, -1, 1, Q("5.311759 mm")))
sketch1.addConstraint(Sketcher.Constraint("DistanceX", 10, 3, -1, 1, Q("7.171561 mm")))
sketch1.addConstraint(Sketcher.Constraint("DistanceY", 10, 3, -1, 1, Q("2.330182 mm")))
sketch1.addConstraint(Sketcher.Constraint("DistanceX", 37, 3, -1, 1, Q("44.619519 mm")))
sketch1.addConstraint(Sketcher.Constraint("DistanceY", 1, 1, -1, 1, Q("42.067761 mm")))
sketch1.addConstraint(Sketcher.Constraint("DistanceY", 5, 1, -1, 1, Q("25.263459 mm")))
sketch1.addConstraint(Sketcher.Constraint("DistanceY", 13, 2, -1, 1, Q("5.400662 mm")))
pad1 = body.newObject("PartDesign::Pad", "Pad")
pad1.Profile = sketch1
pad1.Length = Q("0.0625 in")

# Sketch on XY plane
sketch2 = body.newObject("Sketcher::SketchObject", "Sketch001")
sketch2.AttachmentSupport = (doc.getObject("XY_Plane"), [""])
sketch2.MapMode = "FlatFace"
sketch2.addGeometry(Part.Circle(Vector(0, 0, 0), Vector(0, 0, 1), 50.8), False)
sketch2.addGeometry(Part.Circle(Vector(0, 0, 0), Vector(0, 0, 1), 47.625), False)
sketch2.addConstraint(Sketcher.Constraint("Coincident", 0, 3, -1, 1))
sketch2.addConstraint(Sketcher.Constraint("Coincident", 1, 3, -1, 1))
sketch2.addConstraint(Sketcher.Constraint("Diameter", 0, Q("4 in")))
sketch2.addConstraint(Sketcher.Constraint("Diameter", 1, Q("3.75 in")))
pad2 = body.newObject("PartDesign::Pad", "Pad001")
pad2.Profile = sketch2
pad2.Length = Q("1 in")

doc.recompute()
